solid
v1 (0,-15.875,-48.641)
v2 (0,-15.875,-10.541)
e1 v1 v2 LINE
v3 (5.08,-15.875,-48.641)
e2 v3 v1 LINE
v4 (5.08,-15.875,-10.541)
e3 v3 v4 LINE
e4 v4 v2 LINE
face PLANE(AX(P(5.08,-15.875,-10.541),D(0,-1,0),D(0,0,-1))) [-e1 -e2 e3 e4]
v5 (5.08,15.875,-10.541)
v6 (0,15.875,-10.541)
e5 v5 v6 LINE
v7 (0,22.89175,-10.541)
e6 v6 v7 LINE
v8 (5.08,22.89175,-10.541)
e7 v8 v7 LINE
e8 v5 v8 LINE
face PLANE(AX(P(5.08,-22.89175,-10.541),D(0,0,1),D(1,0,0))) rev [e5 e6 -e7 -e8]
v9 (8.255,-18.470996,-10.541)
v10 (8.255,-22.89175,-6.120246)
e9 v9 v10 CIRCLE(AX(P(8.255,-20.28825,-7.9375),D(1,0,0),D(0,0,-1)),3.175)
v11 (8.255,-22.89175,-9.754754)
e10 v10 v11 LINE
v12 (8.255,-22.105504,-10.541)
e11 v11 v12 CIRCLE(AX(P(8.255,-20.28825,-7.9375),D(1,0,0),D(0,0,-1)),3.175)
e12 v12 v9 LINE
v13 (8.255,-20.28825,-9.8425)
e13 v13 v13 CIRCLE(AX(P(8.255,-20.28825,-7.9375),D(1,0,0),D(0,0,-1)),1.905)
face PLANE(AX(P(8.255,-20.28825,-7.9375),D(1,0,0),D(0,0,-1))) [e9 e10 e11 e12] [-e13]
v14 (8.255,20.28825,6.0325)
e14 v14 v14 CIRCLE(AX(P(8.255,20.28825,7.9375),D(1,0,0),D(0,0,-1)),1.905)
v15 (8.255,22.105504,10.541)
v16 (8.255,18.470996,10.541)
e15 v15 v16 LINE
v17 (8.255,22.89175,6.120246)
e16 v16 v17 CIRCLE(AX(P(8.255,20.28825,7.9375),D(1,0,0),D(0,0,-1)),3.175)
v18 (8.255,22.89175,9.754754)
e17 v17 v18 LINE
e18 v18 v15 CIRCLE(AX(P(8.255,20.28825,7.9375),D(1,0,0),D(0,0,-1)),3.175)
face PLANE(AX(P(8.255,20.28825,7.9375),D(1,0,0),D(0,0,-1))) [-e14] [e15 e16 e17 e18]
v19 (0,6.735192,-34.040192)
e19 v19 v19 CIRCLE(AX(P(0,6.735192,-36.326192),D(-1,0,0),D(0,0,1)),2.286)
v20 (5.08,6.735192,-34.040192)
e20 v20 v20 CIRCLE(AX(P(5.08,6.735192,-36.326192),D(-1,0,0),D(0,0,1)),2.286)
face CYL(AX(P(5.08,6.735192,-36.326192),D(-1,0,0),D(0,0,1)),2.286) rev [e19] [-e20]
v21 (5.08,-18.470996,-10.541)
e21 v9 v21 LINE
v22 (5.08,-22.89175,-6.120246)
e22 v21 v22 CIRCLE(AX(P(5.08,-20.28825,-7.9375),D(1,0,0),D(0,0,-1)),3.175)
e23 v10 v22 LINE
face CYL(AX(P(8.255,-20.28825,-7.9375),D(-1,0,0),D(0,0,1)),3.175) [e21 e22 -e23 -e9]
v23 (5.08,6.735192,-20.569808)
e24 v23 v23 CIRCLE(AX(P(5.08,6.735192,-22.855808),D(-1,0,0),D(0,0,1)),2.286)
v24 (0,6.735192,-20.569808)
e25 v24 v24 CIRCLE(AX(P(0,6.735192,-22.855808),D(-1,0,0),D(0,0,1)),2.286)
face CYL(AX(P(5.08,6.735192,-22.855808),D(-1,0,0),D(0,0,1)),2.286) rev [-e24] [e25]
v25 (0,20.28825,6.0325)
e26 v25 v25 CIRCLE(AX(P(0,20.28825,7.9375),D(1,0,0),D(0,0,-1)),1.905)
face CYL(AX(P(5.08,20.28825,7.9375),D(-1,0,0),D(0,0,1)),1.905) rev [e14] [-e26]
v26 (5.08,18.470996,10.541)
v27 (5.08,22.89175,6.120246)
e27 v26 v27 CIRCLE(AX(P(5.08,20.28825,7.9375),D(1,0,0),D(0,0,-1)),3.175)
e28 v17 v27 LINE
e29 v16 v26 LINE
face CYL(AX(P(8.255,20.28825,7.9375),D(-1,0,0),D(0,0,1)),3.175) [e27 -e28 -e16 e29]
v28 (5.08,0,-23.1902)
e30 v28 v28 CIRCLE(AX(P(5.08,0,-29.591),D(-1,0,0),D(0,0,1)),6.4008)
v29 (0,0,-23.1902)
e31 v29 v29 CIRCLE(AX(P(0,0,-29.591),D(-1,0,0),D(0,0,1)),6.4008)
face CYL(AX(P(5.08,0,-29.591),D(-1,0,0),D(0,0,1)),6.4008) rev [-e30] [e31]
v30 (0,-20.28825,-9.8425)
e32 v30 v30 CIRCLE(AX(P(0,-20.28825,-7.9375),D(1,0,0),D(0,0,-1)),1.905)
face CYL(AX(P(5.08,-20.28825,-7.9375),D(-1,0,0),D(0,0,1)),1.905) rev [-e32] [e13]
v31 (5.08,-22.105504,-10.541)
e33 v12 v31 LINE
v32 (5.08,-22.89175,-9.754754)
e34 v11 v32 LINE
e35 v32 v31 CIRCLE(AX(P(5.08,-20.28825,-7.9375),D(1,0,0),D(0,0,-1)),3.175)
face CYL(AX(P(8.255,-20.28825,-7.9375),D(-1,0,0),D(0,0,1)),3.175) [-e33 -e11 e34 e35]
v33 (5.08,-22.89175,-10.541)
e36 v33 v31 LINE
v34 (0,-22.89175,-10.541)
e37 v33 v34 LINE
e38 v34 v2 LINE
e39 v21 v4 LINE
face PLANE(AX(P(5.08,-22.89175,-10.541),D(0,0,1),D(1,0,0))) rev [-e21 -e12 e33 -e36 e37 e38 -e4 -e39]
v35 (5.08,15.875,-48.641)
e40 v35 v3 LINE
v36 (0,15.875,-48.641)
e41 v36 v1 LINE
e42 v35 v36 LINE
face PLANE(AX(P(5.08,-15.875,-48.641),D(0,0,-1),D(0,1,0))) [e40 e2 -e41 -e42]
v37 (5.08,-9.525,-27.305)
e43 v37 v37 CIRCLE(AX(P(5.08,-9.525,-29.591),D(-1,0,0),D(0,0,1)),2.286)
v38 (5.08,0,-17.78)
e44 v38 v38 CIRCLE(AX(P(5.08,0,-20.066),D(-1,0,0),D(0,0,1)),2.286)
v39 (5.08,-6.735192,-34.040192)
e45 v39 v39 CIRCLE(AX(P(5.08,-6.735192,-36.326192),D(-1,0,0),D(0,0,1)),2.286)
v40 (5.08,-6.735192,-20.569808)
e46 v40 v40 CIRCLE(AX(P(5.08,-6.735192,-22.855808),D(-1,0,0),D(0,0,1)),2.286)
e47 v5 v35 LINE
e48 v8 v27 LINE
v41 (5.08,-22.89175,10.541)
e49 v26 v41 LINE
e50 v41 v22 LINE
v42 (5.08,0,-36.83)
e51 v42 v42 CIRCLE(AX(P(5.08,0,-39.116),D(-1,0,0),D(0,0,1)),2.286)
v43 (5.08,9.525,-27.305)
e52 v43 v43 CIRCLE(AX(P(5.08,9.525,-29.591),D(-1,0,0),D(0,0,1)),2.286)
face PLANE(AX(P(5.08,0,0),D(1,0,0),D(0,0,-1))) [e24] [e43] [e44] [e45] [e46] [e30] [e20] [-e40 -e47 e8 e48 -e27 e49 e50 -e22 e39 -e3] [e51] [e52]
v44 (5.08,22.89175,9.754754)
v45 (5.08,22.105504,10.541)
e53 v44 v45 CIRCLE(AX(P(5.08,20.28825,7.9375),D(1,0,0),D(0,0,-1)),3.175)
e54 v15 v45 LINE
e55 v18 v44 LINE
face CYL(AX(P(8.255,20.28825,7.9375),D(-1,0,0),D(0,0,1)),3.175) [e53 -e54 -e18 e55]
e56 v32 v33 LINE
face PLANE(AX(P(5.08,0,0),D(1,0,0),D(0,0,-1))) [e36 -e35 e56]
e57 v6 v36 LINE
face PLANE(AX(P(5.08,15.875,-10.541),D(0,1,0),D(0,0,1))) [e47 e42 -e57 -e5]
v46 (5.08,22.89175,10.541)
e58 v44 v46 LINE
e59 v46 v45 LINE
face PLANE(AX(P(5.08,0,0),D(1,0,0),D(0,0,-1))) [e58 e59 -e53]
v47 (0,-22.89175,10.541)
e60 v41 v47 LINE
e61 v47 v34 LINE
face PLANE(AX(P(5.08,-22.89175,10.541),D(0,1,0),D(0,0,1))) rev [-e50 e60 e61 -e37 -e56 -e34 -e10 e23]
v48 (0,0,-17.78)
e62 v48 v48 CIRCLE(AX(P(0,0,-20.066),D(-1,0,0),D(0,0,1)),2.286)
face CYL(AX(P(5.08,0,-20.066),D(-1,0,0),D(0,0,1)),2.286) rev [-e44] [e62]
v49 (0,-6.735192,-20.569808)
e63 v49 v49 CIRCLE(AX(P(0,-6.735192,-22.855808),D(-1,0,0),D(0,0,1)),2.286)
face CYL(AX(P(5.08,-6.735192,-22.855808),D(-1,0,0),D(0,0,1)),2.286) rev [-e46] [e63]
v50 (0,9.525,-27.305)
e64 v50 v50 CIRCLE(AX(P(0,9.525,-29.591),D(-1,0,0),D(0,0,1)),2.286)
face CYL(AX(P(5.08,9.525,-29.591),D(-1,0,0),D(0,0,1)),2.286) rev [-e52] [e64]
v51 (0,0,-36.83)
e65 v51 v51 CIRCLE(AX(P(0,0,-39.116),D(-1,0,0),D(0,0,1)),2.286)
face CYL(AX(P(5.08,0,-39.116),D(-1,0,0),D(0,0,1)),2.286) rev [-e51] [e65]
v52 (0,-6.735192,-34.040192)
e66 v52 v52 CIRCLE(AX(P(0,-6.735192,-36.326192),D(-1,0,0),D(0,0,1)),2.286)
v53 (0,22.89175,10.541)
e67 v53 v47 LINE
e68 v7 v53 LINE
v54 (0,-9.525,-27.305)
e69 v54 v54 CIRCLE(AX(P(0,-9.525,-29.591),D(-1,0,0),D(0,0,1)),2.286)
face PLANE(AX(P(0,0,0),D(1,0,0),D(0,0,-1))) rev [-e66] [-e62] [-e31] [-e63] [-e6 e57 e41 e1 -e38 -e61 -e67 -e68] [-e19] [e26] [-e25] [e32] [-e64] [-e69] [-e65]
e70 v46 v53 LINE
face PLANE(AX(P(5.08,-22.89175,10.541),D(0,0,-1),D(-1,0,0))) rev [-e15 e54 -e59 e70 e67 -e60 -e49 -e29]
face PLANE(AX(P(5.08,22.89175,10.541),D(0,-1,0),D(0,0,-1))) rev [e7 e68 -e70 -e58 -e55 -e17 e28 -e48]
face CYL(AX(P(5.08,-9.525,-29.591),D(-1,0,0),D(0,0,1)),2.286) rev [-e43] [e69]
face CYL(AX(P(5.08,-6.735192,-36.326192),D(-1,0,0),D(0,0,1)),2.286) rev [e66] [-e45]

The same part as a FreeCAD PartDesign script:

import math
import FreeCAD as App
import Part
import Sketcher

V = App.Vector
Q = App.Units.Quantity

doc = App.newDocument("Part")
body = doc.addObject("PartDesign::Body", "Body")

# Sketch on YZ plane
sketch1 = body.newObject("Sketcher::SketchObject", "Sketch")
sketch1.AttachmentSupport = (doc.getObject("YZ_Plane"), [""])
sketch1.MapMode = "FlatFace"
sketch1.addGeometry([
    Part.LineSegment(V(-22.9, 10.5, 0), V(-22.9, -10.5, 0)),  # 0
    Part.LineSegment(V(-22.9, -10.5, 0), V(22.9, -10.5, 0)),  # 1
    Part.LineSegment(V(22.9, -10.5, 0), V(22.9, 10.5, 0)),  # 2
    Part.LineSegment(V(22.9, 10.5, 0), V(-22.9, 10.5, 0)),  # 3
    Part.Circle(V(-20.3, -7.9, 0), V(0, 0, 1), 1.9),  # 4
    Part.Circle(V(20.3, 7.9, 0), V(0, 0, 1), 1.9),  # 5
], False)
sketch1.addConstraint([
    Sketcher.Constraint("Coincident", 0, 2, 1, 1),
    Sketcher.Constraint("Coincident", 1, 2, 2, 1),
    Sketcher.Constraint("Coincident", 2, 2, 3, 1),
    Sketcher.Constraint("Coincident", 3, 2, 0, 1),
    Sketcher.Constraint("Vertical", 0),
    Sketcher.Constraint("Horizontal", 1),
    Sketcher.Constraint("Vertical", 2),
    Sketcher.Constraint("Horizontal", 3),
    Sketcher.Constraint("Equal", 4, 5),
    Sketcher.Constraint("Symmetric", 4, 3, 5, 3, -1, 1),
    Sketcher.Constraint("Symmetric", 0, 2, 2, 2, -1, 1),
    Sketcher.Constraint("Diameter", 4, Q("0.15 in")),
    Sketcher.Constraint("DistanceY", 0, 2, 0, 1, Q("0.83 in")),
    Sketcher.Constraint("DistanceX", 0, 2, 5, 3, Q("1.7 in")),
    Sketcher.Constraint("DistanceX", 1, 1, 1, 2, Q("1.8025 in")),
    Sketcher.Constraint("DistanceY", 4, 3, -1, 1, Q("0.3125 in")),
])
pad1 = body.newObject("PartDesign::Pad", "Pad")
pad1.Profile = sketch1
pad1.Length = Q("0.2 in")

# Sketch on YZ plane
sketch2 = body.newObject("Sketcher::SketchObject", "Sketch001")
sketch2.AttachmentSupport = (doc.getObject("YZ_Plane"), [""])
sketch2.MapMode = "FlatFace"
sketch2.AttachmentOffset = App.Placement(V(0, 0, 0.2 * 25.4), App.Rotation())
sketch2.addGeometry([
    Part.LineSegment(V(22.1, 10.5, 0), V(18.5, 10.5, 0)),  # 0
    Part.ArcOfCircle(Part.Circle(V(20.3, 7.9, 0), V(0, 0, 1), 3.2), math.radians(125), math.radians(325)),  # 1
    Part.LineSegment(V(22.9, 6.1, 0), V(22.9, 9.8, 0)),  # 2
    Part.ArcOfCircle(Part.Circle(V(20.3, 7.9, 0), V(0, 0, 1), 3.2), math.radians(35), math.radians(55)),  # 3
    Part.Circle(V(20.3, 7.9, 0), V(0, 0, 1), 1.9),  # 4
    Part.LineSegment(V(-22.9, -6.1, 0), V(-22.9, -9.8, 0)),  # 5
    Part.ArcOfCircle(Part.Circle(V(-20.3, -7.9, 0), V(0, 0, 1), 3.2), math.radians(-145), math.radians(-125)),  # 6
    Part.LineSegment(V(-22.1, -10.5, 0), V(-18.5, -10.5, 0)),  # 7
    Part.ArcOfCircle(Part.Circle(V(-20.3, -7.9, 0), V(0, 0, 1), 3.2), math.radians(-55), math.radians(145)),  # 8
    Part.Circle(V(-20.3, -7.9, 0), V(0, 0, 1), 1.9),  # 9
], False)
sketch2.addConstraint([
    Sketcher.Constraint("Coincident", 0, 2, 1, 1),
    Sketcher.Constraint("Coincident", 1, 2, 2, 1),
    Sketcher.Constraint("Coincident", 2, 2, 3, 1),
    Sketcher.Constraint("Coincident", 3, 2, 0, 1),
    Sketcher.Constraint("Coincident", 5, 2, 6, 1),
    Sketcher.Constraint("Coincident", 6, 2, 7, 1),
    Sketcher.Constraint("Coincident", 7, 2, 8, 1),
    Sketcher.Constraint("Coincident", 8, 2, 5, 1),
    Sketcher.Constraint("Horizontal", 0),
    Sketcher.Constraint("Vertical", 2),
    Sketcher.Constraint("Vertical", 5),
    Sketcher.Constraint("Horizontal", 7),
    Sketcher.Constraint("Coincident", 3, 3, 1, 3),
    Sketcher.Constraint("Coincident", 4, 3, 1, 3),
    Sketcher.Constraint("Coincident", 8, 3, 6, 3),
    Sketcher.Constraint("Coincident", 9, 3, 6, 3),
    Sketcher.Constraint("Equal", 1, 3),
    Sketcher.Constraint("Equal", 3, 6),
    Sketcher.Constraint("Equal", 6, 8),
    Sketcher.Constraint("Equal", 4, 9),
    Sketcher.Constraint("Symmetric", 1, 3, 6, 3, -1, 1),
    Sketcher.Constraint("Equal", 0, 7),
    Sketcher.Constraint("Equal", 7, 2),
    Sketcher.Constraint("Equal", 2, 5),
    Sketcher.Constraint("Diameter", 4, Q("0.15 in")),
    Sketcher.Constraint("Radius", 1, Q("0.125 in")),
    Sketcher.Constraint("DistanceX", 6, 3, 1, 2, Q("1.7 in")),
    Sketcher.Constraint("DistanceY", 6, 2, 0, 2, Q("0.83 in")),
    Sketcher.Constraint("DistanceY", -1, 1, 1, 3, Q("0.3125 in")),
])
pad2 = body.newObject("PartDesign::Pad", "Pad001")
pad2.Profile = sketch2
pad2.Length = Q("0.125 in")

# Sketch on YZ plane
sketch3 = body.newObject("Sketcher::SketchObject", "Sketch002")
sketch3.AttachmentSupport = (doc.getObject("YZ_Plane"), [""])
sketch3.MapMode = "FlatFace"
sketch3.addGeometry([
    Part.LineSegment(V(15.9, -10.5, 0), V(15.9, -48.6, 0)),  # 0
    Part.LineSegment(V(15.9, -48.6, 0), V(-15.9, -48.6, 0)),  # 1
    Part.LineSegment(V(-15.9, -48.6, 0), V(-15.9, -10.5, 0)),  # 2
    Part.LineSegment(V(-15.9, -10.5, 0), V(15.9, -10.5, 0)),  # 3
    Part.Circle(V(6.7, -36.3, 0), V(0, 0, 1), 2.3),  # 4
    Part.Circle(V(9.5, -29.6, 0), V(0, 0, 1), 2.3),  # 5
    Part.Circle(V(0, -39.1, 0), V(0, 0, 1), 2.3),  # 6
    Part.Circle(V(-6.7, -36.3, 0), V(0, 0, 1), 2.3),  # 7
    Part.Circle(V(0, -29.6, 0), V(0, 0, 1), 6.4),  # 8
    Part.Circle(V(-9.5, -29.6, 0), V(0, 0, 1), 2.3),  # 9
    Part.Circle(V(6.7, -22.9, 0), V(0, 0, 1), 2.3),  # 10
    Part.Circle(V(0, -20.1, 0), V(0, 0, 1), 2.3),  # 11
    Part.Circle(V(-6.7, -22.9, 0), V(0, 0, 1), 2.3),  # 12
], False)
sketch3.addConstraint([
    Sketcher.Constraint("Coincident", 0, 2, 1, 1),
    Sketcher.Constraint("Coincident", 1, 2, 2, 1),
    Sketcher.Constraint("Coincident", 2, 2, 3, 1),
    Sketcher.Constraint("Coincident", 3, 2, 0, 1),
    Sketcher.Constraint("Vertical", 0),
    Sketcher.Constraint("Horizontal", 1),
    Sketcher.Constraint("Vertical", 2),
    Sketcher.Constraint("Horizontal", 3),
    Sketcher.Constraint("Equal", 4, 5),
    Sketcher.Constraint("Equal", 5, 6),
    Sketcher.Constraint("Equal", 6, 7),
    Sketcher.Constraint("Equal", 7, 9),
    Sketcher.Constraint("Equal", 9, 10),
    Sketcher.Constraint("Equal", 10, 11),
    Sketcher.Constraint("Equal", 11, 12),
    Sketcher.Constraint("Symmetric", 4, 3, 7, 3, -2),
    Sketcher.Constraint("Symmetric", 5, 3, 9, 3, -2),
    Sketcher.Constraint("Symmetric", 10, 3, 12, 3, -2),
    Sketcher.Constraint("PointOnObject", 6, 3, -2),
    Sketcher.Constraint("PointOnObject", 8, 3, -2),
    Sketcher.Constraint("PointOnObject", 11, 3, -2),
    Sketcher.Constraint("Horizontal", 5, 3, 8, 3),
    Sketcher.Constraint("Vertical", 4, 3, 10, 3),
    Sketcher.Constraint("Diameter", 4, Q("0.18 in")),
    Sketcher.Constraint("Diameter", 8, Q("0.504 in")),
    Sketcher.Constraint("DistanceY", 0, 2, 0, 1, Q("1.5 in")),
    Sketcher.Constraint("DistanceX", 1, 2, 1, 1, Q("1.25 in")),
    Sketcher.Constraint("DistanceY", 6, 3, -1, 1, Q("1.54 in")),
    Sketcher.Constraint("DistanceY", 11, 3, -1, 1, Q("0.79 in")),
    Sketcher.Constraint("DistanceX", 9, 3, 5, 3, Q("0.75 in")),
    Sketcher.Constraint("DistanceX", 5, 3, 0, 2, Q("0.25 in")),
    Sketcher.Constraint("DistanceY", 0, 2, 5, 3, Q("0.75 in")),
    Sketcher.Constraint("DistanceY", 5, 3, -1, 1, Q("1.165 in")),
    Sketcher.Constraint("DistanceX", -1, 1, 4, 3, Q("6.735192 mm")),
    Sketcher.Constraint("DistanceY", 4, 3, -1, 1, Q("36.326192 mm")),
    Sketcher.Constraint("DistanceY", 10, 3, -1, 1, Q("22.855808 mm")),
])
pad3 = body.newObject("PartDesign::Pad", "Pad002")
pad3.Profile = sketch3
pad3.Length = Q("0.2 in")

doc.recompute()
